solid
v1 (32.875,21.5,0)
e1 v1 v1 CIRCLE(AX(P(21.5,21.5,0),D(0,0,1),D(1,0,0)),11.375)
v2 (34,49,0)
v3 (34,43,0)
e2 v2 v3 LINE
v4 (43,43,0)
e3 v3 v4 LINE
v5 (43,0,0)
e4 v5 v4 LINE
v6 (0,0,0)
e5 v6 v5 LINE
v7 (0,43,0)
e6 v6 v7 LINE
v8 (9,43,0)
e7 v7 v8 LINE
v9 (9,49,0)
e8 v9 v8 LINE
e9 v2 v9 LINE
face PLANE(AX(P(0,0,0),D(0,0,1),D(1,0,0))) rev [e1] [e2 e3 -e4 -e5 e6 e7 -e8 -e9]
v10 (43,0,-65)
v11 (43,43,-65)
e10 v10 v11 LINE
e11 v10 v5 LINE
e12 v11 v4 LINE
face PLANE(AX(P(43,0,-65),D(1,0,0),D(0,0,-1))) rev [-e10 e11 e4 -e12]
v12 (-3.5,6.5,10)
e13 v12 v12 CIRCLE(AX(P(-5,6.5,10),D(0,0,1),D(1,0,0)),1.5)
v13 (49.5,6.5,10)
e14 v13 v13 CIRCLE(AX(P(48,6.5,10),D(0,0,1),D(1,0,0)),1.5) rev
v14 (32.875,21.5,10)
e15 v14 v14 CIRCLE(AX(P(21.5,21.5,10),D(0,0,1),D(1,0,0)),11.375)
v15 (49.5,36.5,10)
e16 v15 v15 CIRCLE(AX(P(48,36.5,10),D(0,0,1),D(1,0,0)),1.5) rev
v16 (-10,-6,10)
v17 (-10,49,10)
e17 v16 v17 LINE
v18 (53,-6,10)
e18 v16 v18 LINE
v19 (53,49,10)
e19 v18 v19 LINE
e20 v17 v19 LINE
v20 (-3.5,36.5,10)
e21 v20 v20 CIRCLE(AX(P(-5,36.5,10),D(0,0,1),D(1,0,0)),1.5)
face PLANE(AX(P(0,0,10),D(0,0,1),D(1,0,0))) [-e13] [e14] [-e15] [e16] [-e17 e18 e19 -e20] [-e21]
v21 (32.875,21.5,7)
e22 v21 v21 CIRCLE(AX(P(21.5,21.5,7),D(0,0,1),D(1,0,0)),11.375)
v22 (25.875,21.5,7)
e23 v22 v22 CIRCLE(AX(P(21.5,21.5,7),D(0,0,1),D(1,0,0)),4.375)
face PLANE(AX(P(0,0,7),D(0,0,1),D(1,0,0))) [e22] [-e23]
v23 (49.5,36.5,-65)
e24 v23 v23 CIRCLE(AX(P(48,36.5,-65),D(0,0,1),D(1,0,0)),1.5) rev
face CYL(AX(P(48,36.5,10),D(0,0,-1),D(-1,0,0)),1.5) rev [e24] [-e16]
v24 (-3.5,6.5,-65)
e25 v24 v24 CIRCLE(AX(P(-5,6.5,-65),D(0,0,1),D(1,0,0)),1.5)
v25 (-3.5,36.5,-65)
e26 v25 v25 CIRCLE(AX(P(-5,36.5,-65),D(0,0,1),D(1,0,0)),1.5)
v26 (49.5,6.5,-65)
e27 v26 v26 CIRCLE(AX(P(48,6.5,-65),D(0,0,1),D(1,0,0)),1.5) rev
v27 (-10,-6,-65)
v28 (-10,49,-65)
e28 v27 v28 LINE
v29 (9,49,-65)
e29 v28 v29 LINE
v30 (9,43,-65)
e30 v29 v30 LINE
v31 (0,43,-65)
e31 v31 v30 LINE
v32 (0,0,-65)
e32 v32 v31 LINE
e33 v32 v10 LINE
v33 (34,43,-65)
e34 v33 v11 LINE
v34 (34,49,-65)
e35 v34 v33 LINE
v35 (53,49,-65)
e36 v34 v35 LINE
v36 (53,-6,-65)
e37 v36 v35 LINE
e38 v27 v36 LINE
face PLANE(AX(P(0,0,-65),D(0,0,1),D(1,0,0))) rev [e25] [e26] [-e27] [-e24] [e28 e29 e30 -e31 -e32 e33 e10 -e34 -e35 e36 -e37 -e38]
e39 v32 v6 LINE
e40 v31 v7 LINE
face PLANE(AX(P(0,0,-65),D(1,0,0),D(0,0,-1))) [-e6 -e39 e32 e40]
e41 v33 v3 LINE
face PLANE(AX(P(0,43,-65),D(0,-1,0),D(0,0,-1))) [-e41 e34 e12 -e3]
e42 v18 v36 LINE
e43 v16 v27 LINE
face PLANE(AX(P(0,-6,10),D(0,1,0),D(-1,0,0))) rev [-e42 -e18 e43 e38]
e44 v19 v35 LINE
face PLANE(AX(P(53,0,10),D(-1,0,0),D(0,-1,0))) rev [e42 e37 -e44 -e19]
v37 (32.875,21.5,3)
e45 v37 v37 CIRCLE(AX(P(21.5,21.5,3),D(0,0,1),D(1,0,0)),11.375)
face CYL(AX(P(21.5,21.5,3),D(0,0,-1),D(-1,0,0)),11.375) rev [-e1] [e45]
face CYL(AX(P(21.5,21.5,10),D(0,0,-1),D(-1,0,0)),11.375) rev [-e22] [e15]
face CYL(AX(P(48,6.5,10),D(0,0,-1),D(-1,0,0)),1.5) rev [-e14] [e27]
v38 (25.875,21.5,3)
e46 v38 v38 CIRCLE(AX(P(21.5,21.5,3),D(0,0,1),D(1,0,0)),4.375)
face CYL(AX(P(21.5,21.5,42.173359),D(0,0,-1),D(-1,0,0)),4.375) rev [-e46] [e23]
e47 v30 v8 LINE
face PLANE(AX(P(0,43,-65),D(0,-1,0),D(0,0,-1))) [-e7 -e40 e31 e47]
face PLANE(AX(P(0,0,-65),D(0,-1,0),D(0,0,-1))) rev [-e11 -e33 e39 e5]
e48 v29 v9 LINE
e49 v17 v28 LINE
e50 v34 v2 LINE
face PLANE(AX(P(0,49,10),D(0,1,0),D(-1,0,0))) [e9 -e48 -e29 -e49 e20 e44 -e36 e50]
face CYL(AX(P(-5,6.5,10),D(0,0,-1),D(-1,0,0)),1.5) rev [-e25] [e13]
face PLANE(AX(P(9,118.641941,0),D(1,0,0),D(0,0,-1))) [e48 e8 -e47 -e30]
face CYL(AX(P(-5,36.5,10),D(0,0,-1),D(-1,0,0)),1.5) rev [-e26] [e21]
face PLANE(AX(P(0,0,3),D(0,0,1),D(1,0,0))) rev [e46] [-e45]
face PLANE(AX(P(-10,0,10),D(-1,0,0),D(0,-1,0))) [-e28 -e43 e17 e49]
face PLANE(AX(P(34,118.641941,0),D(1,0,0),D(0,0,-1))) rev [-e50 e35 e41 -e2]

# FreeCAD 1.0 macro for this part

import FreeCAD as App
import Part
import Sketcher
from FreeCAD import Vector


def add_polygon(sketch, points):
    """Adds a closed chain of lines whose ends are joined by coincident constraints."""
    first, n = sketch.GeometryCount, len(points)
    for a, b in zip(points, points[1:] + points[:1]):
        sketch.addGeometry(Part.LineSegment(App.Vector(*a, 0), App.Vector(*b, 0)), False)
    for i in range(n):
        sketch.addConstraint(Sketcher.Constraint("Coincident", first + i, 2, first + (i + 1) % n, 1))

doc = App.newDocument("Part")
body = doc.addObject("PartDesign::Body", "Body")

# Sketch on XY plane
sketch1 = body.newObject("Sketcher::SketchObject", "Sketch")
sketch1.AttachmentSupport = (doc.getObject("XY_Plane"), [""])
sketch1.MapMode = "FlatFace"
add_polygon(sketch1, [(-10, 49), (-10, -6), (53, -6), (53, 49)])  # lines 0-3
sketch1.addGeometry(Part.Circle(Vector(-5, 6.5, 0), Vector(0, 0, 1), 1.5), False)  # 4
sketch1.addGeometry(Part.Circle(Vector(48, 6.5, 0), Vector(0, 0, 1), 1.5), False)  # 5
sketch1.addGeometry(Part.Circle(Vector(-5, 36.5, 0), Vector(0, 0, 1), 1.5), False)  # 6
sketch1.addGeometry(Part.Circle(Vector(21.5, 21.5, 0), Vector(0, 0, 1), 11.4), False)  # 7
sketch1.addGeometry(Part.Circle(Vector(48, 36.5, 0), Vector(0, 0, 1), 1.5), False)  # 8
sketch1.addConstraint([
    Sketcher.Constraint("Vertical", 0),
    Sketcher.Constraint("Horizontal", 1),
    Sketcher.Constraint("Vertical", 2),
    Sketcher.Constraint("Horizontal", 3),
    Sketcher.Constraint("Equal", 4, 5),
    Sketcher.Constraint("Equal", 5, 6),
    Sketcher.Constraint("Equal", 6, 8),
    Sketcher.Constraint("Horizontal", 4, 3, 5, 3),
    Sketcher.Constraint("Horizontal", 6, 3, 8, 3),
    Sketcher.Constraint("Vertical", 4, 3, 6, 3),
    Sketcher.Constraint("Vertical", 5, 3, 8, 3),
    Sketcher.Constraint("Diameter", 4, 3.0),
    Sketcher.Constraint("Diameter", 7, 22.75),
    Sketcher.Constraint("DistanceX", 1, 1, 1, 2, 63.0),
    Sketcher.Constraint("DistanceY", 0, 2, 0, 1, 55.0),
    Sketcher.Constraint("DistanceX", 4, 3, -1, 1, 5.0),
    Sketcher.Constraint("DistanceX", -1, 1, 5, 3, 48.0),
    Sketcher.Constraint("DistanceX", 0, 2, -1, 1, 10.0),
    Sketcher.Constraint("DistanceY", 0, 2, -1, 1, 6.0),
    Sketcher.Constraint("DistanceY", 4, 3, 6, 3, 30.0),
    Sketcher.Constraint("DistanceY", 4, 3, 7, 3, 15.0),
    Sketcher.Constraint("DistanceY", -1, 1, 4, 3, 6.5),
    Sketcher.Constraint("DistanceX", -1, 1, 7, 3, 21.5),
])
pad1 = body.newObject("PartDesign::Pad", "Pad")
pad1.Profile = sketch1
pad1.Length = 10

# Sketch on XY plane
sketch2 = body.newObject("Sketcher::SketchObject", "Sketch001")
sketch2.AttachmentSupport = (doc.getObject("XY_Plane"), [""])
sketch2.MapMode = "FlatFace"
sketch2.AttachmentOffset = App.Placement(Vector(0, 0, -65), App.Rotation())
add_polygon(sketch2, [(-10, 49), (-10, -6), (53, -6), (53, 49)])  # lines 0-3
sketch2.addGeometry(Part.Circle(Vector(-5, 6.5, 0), Vector(0, 0, 1), 1.5), False)  # 4
sketch2.addGeometry(Part.Circle(Vector(48, 6.5, 0), Vector(0, 0, 1), 1.5), False)  # 5
sketch2.addGeometry(Part.Circle(Vector(-5, 36.5, 0), Vector(0, 0, 1), 1.5), False)  # 6
add_polygon(sketch2, [(43, 0), (0, 0), (0, 43), (43, 43)])  # lines 7-10
sketch2.addGeometry(Part.Circle(Vector(48, 36.5, 0), Vector(0, 0, 1), 1.5), False)  # 11
sketch2.addConstraint([
    Sketcher.Constraint("Vertical", 0),
    Sketcher.Constraint("Horizontal", 1),
    Sketcher.Constraint("Vertical", 2),
    Sketcher.Constraint("Horizontal", 3),
    Sketcher.Constraint("Horizontal", 7),
    Sketcher.Constraint("Vertical", 8),
    Sketcher.Constraint("Horizontal", 9),
    Sketcher.Constraint("Vertical", 10),
    Sketcher.Constraint("Coincident", 7, 2, -1, 1),
    Sketcher.Constraint("Equal", 4, 5),
    Sketcher.Constraint("Equal", 5, 6),
    Sketcher.Constraint("Equal", 6, 11),
    Sketcher.Constraint("Horizontal", 4, 3, 5, 3),
    Sketcher.Constraint("Horizontal", 6, 3, 11, 3),
    Sketcher.Constraint("Vertical", 4, 3, 6, 3),
    Sketcher.Constraint("Vertical", 5, 3, 11, 3),
    Sketcher.Constraint("Equal", 9, 8),
    Sketcher.Constraint("Diameter", 4, 3.0),
    Sketcher.Constraint("DistanceX", 1, 1, 1, 2, 63.0),
    Sketcher.Constraint("DistanceX", 7, 2, 7, 1, 43.0),
    Sketcher.Constraint("DistanceY", 0, 2, 0, 1, 55.0),
    Sketcher.Constraint("DistanceX", 4, 3, -1, 1, 5.0),
    Sketcher.Constraint("DistanceX", -1, 1, 5, 3, 48.0),
    Sketcher.Constraint("DistanceX", 0, 2, -1, 1, 10.0),
    Sketcher.Constraint("DistanceY", 0, 2, -1, 1, 6.0),
    Sketcher.Constraint("DistanceY", 4, 3, 6, 3, 30.0),
    Sketcher.Constraint("DistanceY", -1, 1, 4, 3, 6.5),
])
pad2 = body.newObject("PartDesign::Pad", "Pad001")
pad2.Profile = sketch2
pad2.Length = 65

# Sketch on XZ plane
sketch3 = body.newObject("Sketcher::SketchObject", "Sketch002")
sketch3.AttachmentSupport = (doc.getObject("XZ_Plane"), [""])
sketch3.MapMode = "FlatFace"
sketch3.AttachmentOffset = App.Placement(Vector(0, 0, -43), App.Rotation())
add_polygon(sketch3, [(34, -65), (34, 0), (9, 0), (9, -65)])  # lines 0-3
sketch3.addConstraint([
    Sketcher.Constraint("Vertical", 0),
    Sketcher.Constraint("Horizontal", 1),
    Sketcher.Constraint("Vertical", 2),
    Sketcher.Constraint("Horizontal", 3),
    Sketcher.Constraint("PointOnObject", 0, 2, -1),
    Sketcher.Constraint("DistanceX", 1, 2, 1, 1, 25.0),
    Sketcher.Constraint("DistanceY", 0, 1, 0, 2, 65.0),
    Sketcher.Constraint("DistanceX", -1, 1, 0, 2, 34.0),
])
pocket1 = body.newObject("PartDesign::Pocket", "Pocket")
pocket1.Profile = sketch3
pocket1.Length = 6

# Sketch on XY plane
sketch4 = body.newObject("Sketcher::SketchObject", "Sketch003")
sketch4.AttachmentSupport = (doc.getObject("XY_Plane"), [""])
sketch4.MapMode = "FlatFace"
sketch4.addGeometry([
    Part.Circle(Vector(21.5, 21.5, 0), Vector(0, 0, 1), 11.4),
    Part.Circle(Vector(21.5, 21.5, 0), Vector(0, 0, 1), 4.4),
], False)
sketch4.addConstraint([
    Sketcher.Constraint("Coincident", 1, 3, 0, 3),
    Sketcher.Constraint("Diameter", 0, 22.75),
    Sketcher.Constraint("Diameter", 1, 8.75),
    Sketcher.Constraint("DistanceX", -1, 1, 0, 3, 21.5),
    Sketcher.Constraint("DistanceY", -1, 1, 0, 3, 21.5),
])
pad3 = body.newObject("PartDesign::Pad", "Pad002")
pad3.Profile = sketch4
pad3.Length = 7

# Sketch on XY plane
sketch5 = body.newObject("Sketcher::SketchObject", "Sketch004")
sketch5.AttachmentSupport = (doc.getObject("XY_Plane"), [""])
sketch5.MapMode = "FlatFace"
sketch5.addGeometry([
    Part.Circle(Vector(21.5, 21.5, 0), Vector(0, 0, 1), 11.4),
    Part.Circle(Vector(21.5, 21.5, 0), Vector(0, 0, 1), 4.4),
], False)
sketch5.addConstraint([
    Sketcher.Constraint("Coincident", 1, 3, 0, 3),
    Sketcher.Constraint("Diameter", 0, 22.75),
    Sketcher.Constraint("Diameter", 1, 8.75),
    Sketcher.Constraint("DistanceX", -1, 1, 0, 3, 21.5),
    Sketcher.Constraint("DistanceY", -1, 1, 0, 3, 21.5),
])
pocket2 = body.newObject("PartDesign::Pocket", "Pocket001")
pocket2.Profile = sketch5
pocket2.Length = 3
pocket2.Reversed = True

doc.recompute()
